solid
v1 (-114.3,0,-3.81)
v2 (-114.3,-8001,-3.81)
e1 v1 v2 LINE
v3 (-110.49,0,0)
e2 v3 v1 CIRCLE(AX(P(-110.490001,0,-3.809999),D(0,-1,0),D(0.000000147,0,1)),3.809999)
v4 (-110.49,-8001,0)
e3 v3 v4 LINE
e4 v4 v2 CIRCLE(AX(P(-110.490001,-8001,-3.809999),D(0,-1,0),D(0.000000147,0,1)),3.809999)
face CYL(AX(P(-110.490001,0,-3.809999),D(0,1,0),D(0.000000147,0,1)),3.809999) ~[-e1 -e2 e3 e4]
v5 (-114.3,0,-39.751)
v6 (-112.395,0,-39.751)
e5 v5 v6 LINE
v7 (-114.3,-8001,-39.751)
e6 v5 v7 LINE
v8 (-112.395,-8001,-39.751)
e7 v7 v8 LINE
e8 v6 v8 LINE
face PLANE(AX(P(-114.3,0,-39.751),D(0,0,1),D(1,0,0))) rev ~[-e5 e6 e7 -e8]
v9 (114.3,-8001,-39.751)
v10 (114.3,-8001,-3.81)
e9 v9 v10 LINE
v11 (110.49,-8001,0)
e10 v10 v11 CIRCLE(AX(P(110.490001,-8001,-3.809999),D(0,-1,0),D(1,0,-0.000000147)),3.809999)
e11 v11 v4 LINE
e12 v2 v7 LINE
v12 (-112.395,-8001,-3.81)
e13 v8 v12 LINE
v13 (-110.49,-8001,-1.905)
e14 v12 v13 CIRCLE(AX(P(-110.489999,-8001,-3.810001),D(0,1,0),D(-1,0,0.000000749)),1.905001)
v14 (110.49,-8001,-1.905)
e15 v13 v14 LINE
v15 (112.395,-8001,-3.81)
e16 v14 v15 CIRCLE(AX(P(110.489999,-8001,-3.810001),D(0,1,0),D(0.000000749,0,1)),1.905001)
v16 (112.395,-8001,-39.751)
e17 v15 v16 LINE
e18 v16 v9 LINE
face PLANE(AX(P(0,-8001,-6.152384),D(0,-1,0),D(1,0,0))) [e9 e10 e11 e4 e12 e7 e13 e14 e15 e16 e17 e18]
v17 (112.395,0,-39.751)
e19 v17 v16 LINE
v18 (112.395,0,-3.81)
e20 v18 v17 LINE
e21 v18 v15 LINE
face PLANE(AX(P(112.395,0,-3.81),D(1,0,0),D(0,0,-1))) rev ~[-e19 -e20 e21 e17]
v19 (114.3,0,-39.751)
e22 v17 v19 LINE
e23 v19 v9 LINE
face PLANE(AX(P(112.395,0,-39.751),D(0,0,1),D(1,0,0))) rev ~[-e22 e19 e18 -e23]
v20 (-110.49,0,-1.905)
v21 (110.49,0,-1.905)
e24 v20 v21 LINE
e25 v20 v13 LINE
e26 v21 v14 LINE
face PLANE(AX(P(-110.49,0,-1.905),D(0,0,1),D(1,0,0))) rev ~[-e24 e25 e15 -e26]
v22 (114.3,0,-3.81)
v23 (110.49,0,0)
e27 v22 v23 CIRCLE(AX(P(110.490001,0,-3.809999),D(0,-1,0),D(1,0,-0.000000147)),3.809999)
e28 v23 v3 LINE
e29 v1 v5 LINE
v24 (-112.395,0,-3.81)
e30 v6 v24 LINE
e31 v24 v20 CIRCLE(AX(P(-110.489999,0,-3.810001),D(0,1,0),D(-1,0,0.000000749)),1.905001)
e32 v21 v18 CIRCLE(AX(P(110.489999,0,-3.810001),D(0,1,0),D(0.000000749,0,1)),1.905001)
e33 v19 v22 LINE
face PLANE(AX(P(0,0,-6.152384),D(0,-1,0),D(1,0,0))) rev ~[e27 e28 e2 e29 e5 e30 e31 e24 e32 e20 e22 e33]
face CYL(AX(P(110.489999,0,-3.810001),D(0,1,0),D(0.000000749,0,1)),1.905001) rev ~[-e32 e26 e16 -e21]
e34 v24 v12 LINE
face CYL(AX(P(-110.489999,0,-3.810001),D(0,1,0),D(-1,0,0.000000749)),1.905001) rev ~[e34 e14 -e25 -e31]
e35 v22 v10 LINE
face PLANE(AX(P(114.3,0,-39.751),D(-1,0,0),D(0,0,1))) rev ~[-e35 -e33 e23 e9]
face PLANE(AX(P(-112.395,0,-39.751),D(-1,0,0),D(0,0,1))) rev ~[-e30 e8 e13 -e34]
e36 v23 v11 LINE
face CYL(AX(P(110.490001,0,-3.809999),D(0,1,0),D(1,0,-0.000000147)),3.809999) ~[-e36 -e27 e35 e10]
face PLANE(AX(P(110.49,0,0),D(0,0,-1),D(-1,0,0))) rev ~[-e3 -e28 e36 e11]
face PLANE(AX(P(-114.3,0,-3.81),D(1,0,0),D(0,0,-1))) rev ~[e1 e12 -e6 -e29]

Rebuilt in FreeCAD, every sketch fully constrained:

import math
import FreeCAD as App
import Part
import Sketcher
Q = App.Units.Quantity

doc = App.newDocument("Part")
body = doc.addObject("PartDesign::Body", "Body")

# Sketch on XZ plane
sketch1 = body.newObject("Sketcher::SketchObject", "Sketch")
sketch1.AttachmentSupport = (doc.getObject("XZ_Plane"), [""])
sketch1.MapMode = "FlatFace"
sketch1.addGeometry([
    Part.LineSegment(App.Vector(110.5, 0, 0), App.Vector(-110.5, 0, 0)),  # 0
    Part.ArcOfCircle(Part.Circle(App.Vector(-110.5, -3.8, 0), App.Vector(0, 0, 1), 3.8), math.radians(90), math.radians(180)),  # 1
    Part.LineSegment(App.Vector(-114.3, -3.8, 0), App.Vector(-114.3, -39.8, 0)),  # 2
    Part.LineSegment(App.Vector(-114.3, -39.8, 0), App.Vector(-112.4, -39.8, 0)),  # 3
    Part.LineSegment(App.Vector(-112.4, -39.8, 0), App.Vector(-112.4, -3.8, 0)),  # 4
    Part.ArcOfCircle(Part.Circle(App.Vector(-110.5, -3.8, 0), App.Vector(0, 0, 1), 1.9), math.radians(90), math.radians(180)),  # 5
    Part.LineSegment(App.Vector(-110.5, -1.9, 0), App.Vector(110.5, -1.9, 0)),  # 6
    Part.ArcOfCircle(Part.Circle(App.Vector(110.5, -3.8, 0), App.Vector(0, 0, 1), 1.9), math.radians(0), math.radians(90)),  # 7
    Part.LineSegment(App.Vector(112.4, -3.8, 0), App.Vector(112.4, -39.8, 0)),  # 8
    Part.LineSegment(App.Vector(112.4, -39.8, 0), App.Vector(114.3, -39.8, 0)),  # 9
    Part.LineSegment(App.Vector(114.3, -39.8, 0), App.Vector(114.3, -3.8, 0)),  # 10
    Part.ArcOfCircle(Part.Circle(App.Vector(110.5, -3.8, 0), App.Vector(0, 0, 1), 3.8), math.radians(0), math.radians(90)),  # 11
], False)
sketch1.addConstraint([
    Sketcher.Constraint("Tangent", 0, 2, 1, 1),
    Sketcher.Constraint("Tangent", 1, 2, 2, 1),
    Sketcher.Constraint("Coincident", 2, 2, 3, 1),
    Sketcher.Constraint("Coincident", 3, 2, 4, 1),
    Sketcher.Constraint("Tangent", 4, 2, 5, 2),
    Sketcher.Constraint("Tangent", 5, 1, 6, 1),
    Sketcher.Constraint("Tangent", 6, 2, 7, 2),
    Sketcher.Constraint("Tangent", 7, 1, 8, 1),
    Sketcher.Constraint("Coincident", 8, 2, 9, 1),
    Sketcher.Constraint("Coincident", 9, 2, 10, 1),
    Sketcher.Constraint("Tangent", 10, 2, 11, 1),
    Sketcher.Constraint("Tangent", 11, 2, 0, 1),
    Sketcher.Constraint("Horizontal", 0),
    Sketcher.Constraint("Vertical", 2),
    Sketcher.Constraint("Horizontal", 3),
    Sketcher.Constraint("Vertical", 4),
    Sketcher.Constraint("Horizontal", 6),
    Sketcher.Constraint("Vertical", 8),
    Sketcher.Constraint("Horizontal", 9),
    Sketcher.Constraint("Vertical", 10),
    Sketcher.Constraint("Coincident", 5, 3, 1, 3),
    Sketcher.Constraint("Coincident", 11, 3, 7, 3),
    Sketcher.Constraint("Equal", 5, 7),
    Sketcher.Constraint("Symmetric", 0, 2, 11, 2, -1, 1),
    Sketcher.Constraint("Horizontal", 3, 2, 8, 2),
    Sketcher.Constraint("Radius", 1, Q("0.15 in")),
    Sketcher.Constraint("DistanceX", 0, 2, 0, 1, Q("8.7 in")),
    Sketcher.Constraint("Radius", 5, Q("0.0750001 in")),
    Sketcher.Constraint("DistanceY", 2, 2, 2, 1, Q("1.415 in")),
])
pad1 = body.newObject("PartDesign::Pad", "Pad")
pad1.Profile = sketch1
pad1.Length = Q("315 in")

doc.recompute()
